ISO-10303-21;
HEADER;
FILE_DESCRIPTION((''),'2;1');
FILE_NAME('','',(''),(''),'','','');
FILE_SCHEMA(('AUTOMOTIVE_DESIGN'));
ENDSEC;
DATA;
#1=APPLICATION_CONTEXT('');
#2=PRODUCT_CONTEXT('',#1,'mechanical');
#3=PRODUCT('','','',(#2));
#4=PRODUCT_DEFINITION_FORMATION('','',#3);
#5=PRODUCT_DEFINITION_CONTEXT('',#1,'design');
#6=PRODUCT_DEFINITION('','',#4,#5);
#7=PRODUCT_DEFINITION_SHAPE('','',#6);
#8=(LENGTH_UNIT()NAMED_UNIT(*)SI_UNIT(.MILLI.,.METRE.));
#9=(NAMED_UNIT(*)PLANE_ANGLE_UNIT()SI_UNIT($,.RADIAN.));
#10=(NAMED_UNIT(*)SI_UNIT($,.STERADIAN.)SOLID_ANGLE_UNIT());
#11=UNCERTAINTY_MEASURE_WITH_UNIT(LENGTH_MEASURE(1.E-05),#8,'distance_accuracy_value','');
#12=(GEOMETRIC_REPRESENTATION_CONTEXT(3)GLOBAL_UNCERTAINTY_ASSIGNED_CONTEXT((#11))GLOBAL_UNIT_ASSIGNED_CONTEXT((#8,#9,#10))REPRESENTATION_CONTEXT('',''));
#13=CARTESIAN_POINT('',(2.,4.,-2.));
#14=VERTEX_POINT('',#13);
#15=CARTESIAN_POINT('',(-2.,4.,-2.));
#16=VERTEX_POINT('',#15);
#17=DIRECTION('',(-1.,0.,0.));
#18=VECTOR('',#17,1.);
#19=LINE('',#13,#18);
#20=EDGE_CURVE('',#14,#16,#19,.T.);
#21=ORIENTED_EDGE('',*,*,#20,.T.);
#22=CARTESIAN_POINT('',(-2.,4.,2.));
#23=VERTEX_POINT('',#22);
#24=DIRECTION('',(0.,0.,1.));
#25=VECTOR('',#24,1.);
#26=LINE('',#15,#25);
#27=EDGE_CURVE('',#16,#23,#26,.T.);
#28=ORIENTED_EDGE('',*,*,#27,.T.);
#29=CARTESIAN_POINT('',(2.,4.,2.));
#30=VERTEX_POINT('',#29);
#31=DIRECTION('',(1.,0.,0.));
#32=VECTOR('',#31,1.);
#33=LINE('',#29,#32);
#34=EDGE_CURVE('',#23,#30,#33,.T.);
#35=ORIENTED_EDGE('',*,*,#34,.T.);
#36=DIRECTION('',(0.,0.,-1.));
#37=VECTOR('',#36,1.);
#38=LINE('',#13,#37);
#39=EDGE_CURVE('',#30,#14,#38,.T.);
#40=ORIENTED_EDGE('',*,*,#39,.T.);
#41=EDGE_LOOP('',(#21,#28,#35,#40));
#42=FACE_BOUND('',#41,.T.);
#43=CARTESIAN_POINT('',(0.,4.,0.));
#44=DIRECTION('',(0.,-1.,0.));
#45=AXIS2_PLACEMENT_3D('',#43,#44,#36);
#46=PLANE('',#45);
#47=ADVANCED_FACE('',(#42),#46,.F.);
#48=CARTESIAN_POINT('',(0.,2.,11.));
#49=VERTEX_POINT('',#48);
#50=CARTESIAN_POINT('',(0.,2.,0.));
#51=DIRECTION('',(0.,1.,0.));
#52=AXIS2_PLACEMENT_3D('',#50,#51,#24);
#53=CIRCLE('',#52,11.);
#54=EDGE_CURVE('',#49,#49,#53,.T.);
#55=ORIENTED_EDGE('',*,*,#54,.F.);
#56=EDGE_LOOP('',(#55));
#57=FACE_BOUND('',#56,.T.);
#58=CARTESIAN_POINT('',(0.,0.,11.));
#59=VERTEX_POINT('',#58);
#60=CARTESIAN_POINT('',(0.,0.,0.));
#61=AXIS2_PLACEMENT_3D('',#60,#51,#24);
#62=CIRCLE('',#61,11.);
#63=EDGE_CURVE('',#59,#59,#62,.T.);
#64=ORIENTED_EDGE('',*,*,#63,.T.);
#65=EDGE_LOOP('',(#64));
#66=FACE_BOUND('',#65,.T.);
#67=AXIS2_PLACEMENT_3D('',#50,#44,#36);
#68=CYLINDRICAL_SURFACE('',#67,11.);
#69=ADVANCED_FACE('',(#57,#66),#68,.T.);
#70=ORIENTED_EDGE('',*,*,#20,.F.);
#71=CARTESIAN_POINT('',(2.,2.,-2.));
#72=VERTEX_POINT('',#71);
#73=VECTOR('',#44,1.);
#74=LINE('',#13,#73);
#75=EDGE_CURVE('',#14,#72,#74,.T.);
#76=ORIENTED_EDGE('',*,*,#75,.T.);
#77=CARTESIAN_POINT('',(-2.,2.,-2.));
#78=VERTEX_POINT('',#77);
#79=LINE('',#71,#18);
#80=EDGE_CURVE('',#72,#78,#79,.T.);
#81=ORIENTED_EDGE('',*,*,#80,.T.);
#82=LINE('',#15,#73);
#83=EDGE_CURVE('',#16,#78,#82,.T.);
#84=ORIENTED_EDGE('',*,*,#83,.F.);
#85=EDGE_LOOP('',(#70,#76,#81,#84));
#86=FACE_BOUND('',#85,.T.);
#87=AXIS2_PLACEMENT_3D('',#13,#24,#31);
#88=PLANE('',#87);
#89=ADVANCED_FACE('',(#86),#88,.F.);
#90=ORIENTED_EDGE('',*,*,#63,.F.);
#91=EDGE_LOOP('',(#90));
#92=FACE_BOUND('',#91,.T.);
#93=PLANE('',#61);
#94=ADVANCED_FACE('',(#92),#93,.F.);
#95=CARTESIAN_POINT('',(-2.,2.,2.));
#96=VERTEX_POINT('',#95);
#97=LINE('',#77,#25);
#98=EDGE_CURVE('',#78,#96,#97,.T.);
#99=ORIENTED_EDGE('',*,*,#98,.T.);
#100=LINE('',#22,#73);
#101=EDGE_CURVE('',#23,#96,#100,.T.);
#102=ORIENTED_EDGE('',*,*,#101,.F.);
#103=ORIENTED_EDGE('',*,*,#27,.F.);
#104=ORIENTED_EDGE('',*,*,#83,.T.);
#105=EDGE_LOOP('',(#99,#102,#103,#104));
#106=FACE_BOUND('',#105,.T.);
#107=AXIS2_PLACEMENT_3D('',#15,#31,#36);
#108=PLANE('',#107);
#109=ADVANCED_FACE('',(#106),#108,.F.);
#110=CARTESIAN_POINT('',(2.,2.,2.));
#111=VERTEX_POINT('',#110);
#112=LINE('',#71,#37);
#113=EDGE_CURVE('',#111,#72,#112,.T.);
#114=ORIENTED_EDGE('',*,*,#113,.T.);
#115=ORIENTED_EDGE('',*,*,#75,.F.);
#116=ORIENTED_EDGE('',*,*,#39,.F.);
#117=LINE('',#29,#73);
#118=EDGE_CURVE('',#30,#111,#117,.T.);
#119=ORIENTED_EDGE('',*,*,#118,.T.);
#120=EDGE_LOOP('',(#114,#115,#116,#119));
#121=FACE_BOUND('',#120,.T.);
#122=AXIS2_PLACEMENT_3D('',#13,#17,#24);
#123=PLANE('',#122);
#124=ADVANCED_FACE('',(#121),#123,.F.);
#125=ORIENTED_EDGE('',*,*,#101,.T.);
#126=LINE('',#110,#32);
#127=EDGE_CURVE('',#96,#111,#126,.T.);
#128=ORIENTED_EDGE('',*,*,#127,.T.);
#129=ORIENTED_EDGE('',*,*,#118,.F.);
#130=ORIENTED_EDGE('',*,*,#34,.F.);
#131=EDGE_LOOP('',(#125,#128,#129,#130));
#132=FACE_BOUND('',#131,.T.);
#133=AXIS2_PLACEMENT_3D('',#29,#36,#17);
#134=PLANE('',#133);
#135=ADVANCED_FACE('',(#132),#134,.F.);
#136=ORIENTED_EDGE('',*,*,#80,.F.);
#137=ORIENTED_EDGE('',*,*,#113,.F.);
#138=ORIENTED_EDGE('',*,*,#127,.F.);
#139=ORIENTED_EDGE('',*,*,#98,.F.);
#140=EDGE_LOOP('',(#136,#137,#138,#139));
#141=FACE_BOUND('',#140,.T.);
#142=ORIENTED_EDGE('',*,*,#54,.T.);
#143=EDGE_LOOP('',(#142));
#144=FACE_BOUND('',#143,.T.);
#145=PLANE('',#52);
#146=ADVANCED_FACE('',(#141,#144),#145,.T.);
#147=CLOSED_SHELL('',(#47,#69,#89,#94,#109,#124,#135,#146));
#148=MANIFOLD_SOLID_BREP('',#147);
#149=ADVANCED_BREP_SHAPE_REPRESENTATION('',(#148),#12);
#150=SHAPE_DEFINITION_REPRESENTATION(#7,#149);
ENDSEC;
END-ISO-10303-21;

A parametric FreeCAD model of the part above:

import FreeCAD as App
import Part
import Sketcher
from FreeCAD import Vector
Q = App.Units.Quantity

doc = App.newDocument("Part")
params = doc.addObject("Spreadsheet::Sheet", "Params")
for row, (alias, value) in enumerate([
    ("sketch1_diameter", "22 mm"),
    ("pad1_length", "2 mm"),
    ("sketch2_width", "4 mm"),
    ("pad2_length", "2 mm"),
], start=1):
    params.set(f"A{row}", alias)
    params.set(f"B{row}", "=" + value)
    params.setAlias(f"B{row}", alias)

body = doc.addObject("PartDesign::Body", "Body")

# Sketch on XZ plane
sketch1 = body.newObject("Sketcher::SketchObject", "Sketch")
sketch1.AttachmentSupport = (doc.getObject("XZ_Plane"), [""])
sketch1.MapMode = "FlatFace"
sketch1.addGeometry(Part.Circle(Vector(0, 0, 0), Vector(0, 0, 1), 11), False)
sketch1.addConstraint(Sketcher.Constraint("Coincident", 0, 3, -1, 1))
sketch1.addConstraint(Sketcher.Constraint("Diameter", 0, Q("22 mm")))
sketch1.setExpression("Constraints[1]", "Params.sketch1_diameter")
pad1 = body.newObject("PartDesign::Pad", "Pad")
pad1.Profile = sketch1
pad1.setExpression("Length", "Params.pad1_length")
pad1.Reversed = True

# Sketch on XZ plane
sketch2 = body.newObject("Sketcher::SketchObject", "Sketch001")
sketch2.AttachmentSupport = (doc.getObject("XZ_Plane"), [""])
sketch2.MapMode = "FlatFace"
sketch2.AttachmentOffset = App.Placement(Vector(0, 0, -2), App.Rotation())
sketch2.addGeometry(Part.LineSegment(Vector(-2, -2, 0), Vector(-2, 2, 0)), False)
sketch2.addGeometry(Part.LineSegment(Vector(-2, 2, 0), Vector(2, 2, 0)), False)
sketch2.addGeometry(Part.LineSegment(Vector(2, 2, 0), Vector(2, -2, 0)), False)
sketch2.addGeometry(Part.LineSegment(Vector(2, -2, 0), Vector(-2, -2, 0)), False)
sketch2.addConstraint(Sketcher.Constraint("Coincident", 0, 2, 1, 1))
sketch2.addConstraint(Sketcher.Constraint("Coincident", 1, 2, 2, 1))
sketch2.addConstraint(Sketcher.Constraint("Coincident", 2, 2, 3, 1))
sketch2.addConstraint(Sketcher.Constraint("Coincident", 3, 2, 0, 1))
sketch2.addConstraint(Sketcher.Constraint("Vertical", 0))
sketch2.addConstraint(Sketcher.Constraint("Horizontal", 1))
sketch2.addConstraint(Sketcher.Constraint("Vertical", 2))
sketch2.addConstraint(Sketcher.Constraint("Horizontal", 3))
sketch2.addConstraint(Sketcher.Constraint("Symmetric", 0, 2, 2, 2, -1, 1))
sketch2.addConstraint(Sketcher.Constraint("Equal", 3, 0))
sketch2.addConstraint(Sketcher.Constraint("DistanceX", 1, 1, 1, 2, Q("4 mm")))
sketch2.setExpression("Constraints[10]", "Params.sketch2_width")
pad2 = body.newObject("PartDesign::Pad", "Pad001")
pad2.Profile = sketch2
pad2.setExpression("Length", "Params.pad2_length")
pad2.Reversed = True

doc.recompute()
